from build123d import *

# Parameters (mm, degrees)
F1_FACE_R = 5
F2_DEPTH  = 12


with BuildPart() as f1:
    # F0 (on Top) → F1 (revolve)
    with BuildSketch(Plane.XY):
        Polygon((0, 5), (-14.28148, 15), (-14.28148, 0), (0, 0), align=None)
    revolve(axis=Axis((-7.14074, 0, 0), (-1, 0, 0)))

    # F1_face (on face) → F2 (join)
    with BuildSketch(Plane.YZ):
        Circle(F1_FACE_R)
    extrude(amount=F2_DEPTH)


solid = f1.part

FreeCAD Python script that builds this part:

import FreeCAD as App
import Part
import Sketcher
Q = App.Units.Quantity

doc = App.newDocument("Part")
body = doc.addObject("PartDesign::Body", "Body")

# Sketch on XY plane
sketch1 = doc.addObject("Sketcher::SketchObject", "Sketch")
body.addObject(sketch1)
sketch1.AttachmentSupport = (doc.XY_Plane, [""])
sketch1.MapMode = "FlatFace"
sketch1.addGeometry(Part.LineSegment(App.Vector(0, 5, 0), App.Vector(-14, 15, 0)), False)
sketch1.addGeometry(Part.LineSegment(App.Vector(-14, 15, 0), App.Vector(-14, 0, 0)), False)
sketch1.addGeometry(Part.LineSegment(App.Vector(-14, 0, 0), App.Vector(0, 0, 0)), False)
sketch1.addGeometry(Part.LineSegment(App.Vector(0, 0, 0), App.Vector(0, 5, 0)), False)
sketch1.addConstraint(Sketcher.Constraint("Coincident", 0, 2, 1, 1))
sketch1.addConstraint(Sketcher.Constraint("Coincident", 1, 2, 2, 1))
sketch1.addConstraint(Sketcher.Constraint("Coincident", 2, 2, 3, 1))
sketch1.addConstraint(Sketcher.Constraint("Coincident", 3, 2, 0, 1))
sketch1.addConstraint(Sketcher.Constraint("Vertical", 1))
sketch1.addConstraint(Sketcher.Constraint("Horizontal", 2))
sketch1.addConstraint(Sketcher.Constraint("Vertical", 3))
sketch1.addConstraint(Sketcher.Constraint("Coincident", 2, 2, -1, 1))
sketch1.addConstraint(Sketcher.Constraint("DistanceY", 1, 2, 1, 1, 15.0))
sketch1.addConstraint(Sketcher.Constraint("DistanceY", 3, 1, 3, 2, 5.0))
sketch1.addConstraint(Sketcher.Constraint("Angle", 0, Q("145 deg")))
revolution = doc.addObject("PartDesign::Revolution", "Revolution")
body.addObject(revolution)
revolution.Profile = sketch1
revolution.ReferenceAxis = (sketch1, ["H_Axis"])
revolution.Angle = 360

# Sketch on YZ plane
sketch2 = doc.addObject("Sketcher::SketchObject", "Sketch001")
body.addObject(sketch2)
sketch2.AttachmentSupport = (doc.YZ_Plane, [""])
sketch2.MapMode = "FlatFace"
sketch2.addGeometry(Part.Circle(App.Vector(0, 0, 0), App.Vector(0, 0, 1), 5), False)
sketch2.addConstraint(Sketcher.Constraint("Coincident", 0, 3, -1, 1))
sketch2.addConstraint(Sketcher.Constraint("Diameter", 0, 10.0))
pad1 = doc.addObject("PartDesign::Pad", "Pad")
body.addObject(pad1)
pad1.Profile = sketch2
pad1.Length = 12

doc.recompute()
